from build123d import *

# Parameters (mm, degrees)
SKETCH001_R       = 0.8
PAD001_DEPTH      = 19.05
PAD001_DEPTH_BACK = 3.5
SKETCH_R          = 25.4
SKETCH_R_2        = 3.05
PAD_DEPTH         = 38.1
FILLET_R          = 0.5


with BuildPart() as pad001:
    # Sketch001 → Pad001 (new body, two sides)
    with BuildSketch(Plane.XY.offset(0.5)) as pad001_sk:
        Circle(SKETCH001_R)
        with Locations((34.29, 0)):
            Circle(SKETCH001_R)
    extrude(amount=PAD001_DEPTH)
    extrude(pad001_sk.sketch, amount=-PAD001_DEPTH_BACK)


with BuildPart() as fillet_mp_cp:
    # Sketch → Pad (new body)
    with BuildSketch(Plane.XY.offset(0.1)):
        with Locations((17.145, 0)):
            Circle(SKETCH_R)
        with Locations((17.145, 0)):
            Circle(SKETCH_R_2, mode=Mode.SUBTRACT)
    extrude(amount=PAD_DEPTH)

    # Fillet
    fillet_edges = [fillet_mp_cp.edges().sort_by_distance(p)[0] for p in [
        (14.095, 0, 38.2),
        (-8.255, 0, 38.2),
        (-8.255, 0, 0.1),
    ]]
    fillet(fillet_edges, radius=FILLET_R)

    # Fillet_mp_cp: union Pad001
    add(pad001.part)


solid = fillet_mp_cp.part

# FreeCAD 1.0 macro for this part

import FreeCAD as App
import Part
import Sketcher
Q = App.Units.Quantity


def edges_at(feature, points):
    """Names of the edges that pass closest to the given points."""
    edges = feature.Shape.Edges
    near = lambda p: min(range(len(edges)), key=lambda i: edges[i].distToShape(Part.Vertex(*p))[0])
    return sorted({f"Edge{near(p) + 1}" for p in points})

doc = App.newDocument("Part")
params = doc.addObject("Spreadsheet::Sheet", "Params")
for row, (alias, value) in enumerate([
    ("sketch1_diameter", "1.6 mm"),
    ("pad1_length", "19.05 mm"),
    ("pad1_length2", "3.5 mm"),
    ("sketch2_diameter", "50.8 mm"),
    ("sketch2_diameter2", "6.1 mm"),
    ("pad2_length", "38.1 mm"),
    ("fillet_radius", "0.5 mm"),
], start=1):
    params.set(f"A{row}", alias)
    params.set(f"B{row}", "=" + value)
    params.setAlias(f"B{row}", alias)

body = doc.addObject("PartDesign::Body", "Body")
body.AllowCompound = True

# Sketch on XY plane
sketch1 = doc.addObject("Sketcher::SketchObject", "Sketch")
body.addObject(sketch1)
sketch1.AttachmentSupport = (doc.XY_Plane, [""])
sketch1.MapMode = "FlatFace"
sketch1.AttachmentOffset = App.Placement(App.Vector(0, 0, 0.5), App.Rotation())
sketch1.addGeometry(Part.Circle(App.Vector(0, 0, 0), App.Vector(0, 0, 1), 0.8), False)
sketch1.addGeometry(Part.Circle(App.Vector(34.3, 0, 0), App.Vector(0, 0, 1), 0.8), False)
sketch1.addConstraint(Sketcher.Constraint("Coincident", 0, 3, -1, 1))
sketch1.addConstraint(Sketcher.Constraint("Equal", 0, 1))
sketch1.addConstraint(Sketcher.Constraint("PointOnObject", 1, 3, -1))
sketch1.addConstraint(Sketcher.Constraint("Diameter", 0, Q("1.6 mm")))
sketch1.addConstraint(Sketcher.Constraint("DistanceX", -1, 1, 1, 3, Q("34.29 mm")))
sketch1.setExpression("Constraints[3]", "Params.sketch1_diameter")
pad1 = doc.addObject("PartDesign::Pad", "Pad")
body.addObject(pad1)
pad1.Profile = sketch1
pad1.Type = "TwoLengths"
pad1.setExpression("Length", "Params.pad1_length")
pad1.setExpression("Length2", "Params.pad1_length2")
body2 = doc.addObject("PartDesign::Body", "Body001")

# Sketch on XY plane
sketch2 = doc.addObject("Sketcher::SketchObject", "Sketch001")
body2.addObject(sketch2)
sketch2.AttachmentSupport = (doc.getObject("XY_Plane001"), [""])
sketch2.MapMode = "FlatFace"
sketch2.AttachmentOffset = App.Placement(App.Vector(0, 0, 0.1), App.Rotation())
sketch2.addGeometry(Part.Circle(App.Vector(17.1, 0, 0), App.Vector(0, 0, 1), 25.4), False)
sketch2.addGeometry(Part.Circle(App.Vector(17.1, 0, 0), App.Vector(0, 0, 1), 3), False)
sketch2.addConstraint(Sketcher.Constraint("Coincident", 1, 3, 0, 3))
sketch2.addConstraint(Sketcher.Constraint("PointOnObject", 0, 3, -1))
sketch2.addConstraint(Sketcher.Constraint("Diameter", 0, Q("50.8 mm")))
sketch2.addConstraint(Sketcher.Constraint("Diameter", 1, Q("6.1 mm")))
sketch2.addConstraint(Sketcher.Constraint("DistanceX", -1, 1, 0, 3, Q("17.145 mm")))
sketch2.setExpression("Constraints[2]", "Params.sketch2_diameter")
sketch2.setExpression("Constraints[3]", "Params.sketch2_diameter2")
pad2 = doc.addObject("PartDesign::Pad", "Pad001")
body2.addObject(pad2)
pad2.Profile = sketch2
pad2.setExpression("Length", "Params.pad2_length")
doc.recompute()

fillet = doc.addObject("PartDesign::Fillet", "Fillet")
body2.addObject(fillet)
fillet.Base = (pad2, edges_at(pad2, [(14.095, 0, 38.2), (-8.255, 0, 38.2), (-8.255, 0, 0.1)]))
fillet.setExpression("Radius", "Params.fillet_radius")
doc.recompute()

boolean = doc.addObject("PartDesign::Boolean", "Boolean")
body2.addObject(boolean)
boolean.Type = "Fuse"
boolean.addObjects([body])

doc.recompute()
